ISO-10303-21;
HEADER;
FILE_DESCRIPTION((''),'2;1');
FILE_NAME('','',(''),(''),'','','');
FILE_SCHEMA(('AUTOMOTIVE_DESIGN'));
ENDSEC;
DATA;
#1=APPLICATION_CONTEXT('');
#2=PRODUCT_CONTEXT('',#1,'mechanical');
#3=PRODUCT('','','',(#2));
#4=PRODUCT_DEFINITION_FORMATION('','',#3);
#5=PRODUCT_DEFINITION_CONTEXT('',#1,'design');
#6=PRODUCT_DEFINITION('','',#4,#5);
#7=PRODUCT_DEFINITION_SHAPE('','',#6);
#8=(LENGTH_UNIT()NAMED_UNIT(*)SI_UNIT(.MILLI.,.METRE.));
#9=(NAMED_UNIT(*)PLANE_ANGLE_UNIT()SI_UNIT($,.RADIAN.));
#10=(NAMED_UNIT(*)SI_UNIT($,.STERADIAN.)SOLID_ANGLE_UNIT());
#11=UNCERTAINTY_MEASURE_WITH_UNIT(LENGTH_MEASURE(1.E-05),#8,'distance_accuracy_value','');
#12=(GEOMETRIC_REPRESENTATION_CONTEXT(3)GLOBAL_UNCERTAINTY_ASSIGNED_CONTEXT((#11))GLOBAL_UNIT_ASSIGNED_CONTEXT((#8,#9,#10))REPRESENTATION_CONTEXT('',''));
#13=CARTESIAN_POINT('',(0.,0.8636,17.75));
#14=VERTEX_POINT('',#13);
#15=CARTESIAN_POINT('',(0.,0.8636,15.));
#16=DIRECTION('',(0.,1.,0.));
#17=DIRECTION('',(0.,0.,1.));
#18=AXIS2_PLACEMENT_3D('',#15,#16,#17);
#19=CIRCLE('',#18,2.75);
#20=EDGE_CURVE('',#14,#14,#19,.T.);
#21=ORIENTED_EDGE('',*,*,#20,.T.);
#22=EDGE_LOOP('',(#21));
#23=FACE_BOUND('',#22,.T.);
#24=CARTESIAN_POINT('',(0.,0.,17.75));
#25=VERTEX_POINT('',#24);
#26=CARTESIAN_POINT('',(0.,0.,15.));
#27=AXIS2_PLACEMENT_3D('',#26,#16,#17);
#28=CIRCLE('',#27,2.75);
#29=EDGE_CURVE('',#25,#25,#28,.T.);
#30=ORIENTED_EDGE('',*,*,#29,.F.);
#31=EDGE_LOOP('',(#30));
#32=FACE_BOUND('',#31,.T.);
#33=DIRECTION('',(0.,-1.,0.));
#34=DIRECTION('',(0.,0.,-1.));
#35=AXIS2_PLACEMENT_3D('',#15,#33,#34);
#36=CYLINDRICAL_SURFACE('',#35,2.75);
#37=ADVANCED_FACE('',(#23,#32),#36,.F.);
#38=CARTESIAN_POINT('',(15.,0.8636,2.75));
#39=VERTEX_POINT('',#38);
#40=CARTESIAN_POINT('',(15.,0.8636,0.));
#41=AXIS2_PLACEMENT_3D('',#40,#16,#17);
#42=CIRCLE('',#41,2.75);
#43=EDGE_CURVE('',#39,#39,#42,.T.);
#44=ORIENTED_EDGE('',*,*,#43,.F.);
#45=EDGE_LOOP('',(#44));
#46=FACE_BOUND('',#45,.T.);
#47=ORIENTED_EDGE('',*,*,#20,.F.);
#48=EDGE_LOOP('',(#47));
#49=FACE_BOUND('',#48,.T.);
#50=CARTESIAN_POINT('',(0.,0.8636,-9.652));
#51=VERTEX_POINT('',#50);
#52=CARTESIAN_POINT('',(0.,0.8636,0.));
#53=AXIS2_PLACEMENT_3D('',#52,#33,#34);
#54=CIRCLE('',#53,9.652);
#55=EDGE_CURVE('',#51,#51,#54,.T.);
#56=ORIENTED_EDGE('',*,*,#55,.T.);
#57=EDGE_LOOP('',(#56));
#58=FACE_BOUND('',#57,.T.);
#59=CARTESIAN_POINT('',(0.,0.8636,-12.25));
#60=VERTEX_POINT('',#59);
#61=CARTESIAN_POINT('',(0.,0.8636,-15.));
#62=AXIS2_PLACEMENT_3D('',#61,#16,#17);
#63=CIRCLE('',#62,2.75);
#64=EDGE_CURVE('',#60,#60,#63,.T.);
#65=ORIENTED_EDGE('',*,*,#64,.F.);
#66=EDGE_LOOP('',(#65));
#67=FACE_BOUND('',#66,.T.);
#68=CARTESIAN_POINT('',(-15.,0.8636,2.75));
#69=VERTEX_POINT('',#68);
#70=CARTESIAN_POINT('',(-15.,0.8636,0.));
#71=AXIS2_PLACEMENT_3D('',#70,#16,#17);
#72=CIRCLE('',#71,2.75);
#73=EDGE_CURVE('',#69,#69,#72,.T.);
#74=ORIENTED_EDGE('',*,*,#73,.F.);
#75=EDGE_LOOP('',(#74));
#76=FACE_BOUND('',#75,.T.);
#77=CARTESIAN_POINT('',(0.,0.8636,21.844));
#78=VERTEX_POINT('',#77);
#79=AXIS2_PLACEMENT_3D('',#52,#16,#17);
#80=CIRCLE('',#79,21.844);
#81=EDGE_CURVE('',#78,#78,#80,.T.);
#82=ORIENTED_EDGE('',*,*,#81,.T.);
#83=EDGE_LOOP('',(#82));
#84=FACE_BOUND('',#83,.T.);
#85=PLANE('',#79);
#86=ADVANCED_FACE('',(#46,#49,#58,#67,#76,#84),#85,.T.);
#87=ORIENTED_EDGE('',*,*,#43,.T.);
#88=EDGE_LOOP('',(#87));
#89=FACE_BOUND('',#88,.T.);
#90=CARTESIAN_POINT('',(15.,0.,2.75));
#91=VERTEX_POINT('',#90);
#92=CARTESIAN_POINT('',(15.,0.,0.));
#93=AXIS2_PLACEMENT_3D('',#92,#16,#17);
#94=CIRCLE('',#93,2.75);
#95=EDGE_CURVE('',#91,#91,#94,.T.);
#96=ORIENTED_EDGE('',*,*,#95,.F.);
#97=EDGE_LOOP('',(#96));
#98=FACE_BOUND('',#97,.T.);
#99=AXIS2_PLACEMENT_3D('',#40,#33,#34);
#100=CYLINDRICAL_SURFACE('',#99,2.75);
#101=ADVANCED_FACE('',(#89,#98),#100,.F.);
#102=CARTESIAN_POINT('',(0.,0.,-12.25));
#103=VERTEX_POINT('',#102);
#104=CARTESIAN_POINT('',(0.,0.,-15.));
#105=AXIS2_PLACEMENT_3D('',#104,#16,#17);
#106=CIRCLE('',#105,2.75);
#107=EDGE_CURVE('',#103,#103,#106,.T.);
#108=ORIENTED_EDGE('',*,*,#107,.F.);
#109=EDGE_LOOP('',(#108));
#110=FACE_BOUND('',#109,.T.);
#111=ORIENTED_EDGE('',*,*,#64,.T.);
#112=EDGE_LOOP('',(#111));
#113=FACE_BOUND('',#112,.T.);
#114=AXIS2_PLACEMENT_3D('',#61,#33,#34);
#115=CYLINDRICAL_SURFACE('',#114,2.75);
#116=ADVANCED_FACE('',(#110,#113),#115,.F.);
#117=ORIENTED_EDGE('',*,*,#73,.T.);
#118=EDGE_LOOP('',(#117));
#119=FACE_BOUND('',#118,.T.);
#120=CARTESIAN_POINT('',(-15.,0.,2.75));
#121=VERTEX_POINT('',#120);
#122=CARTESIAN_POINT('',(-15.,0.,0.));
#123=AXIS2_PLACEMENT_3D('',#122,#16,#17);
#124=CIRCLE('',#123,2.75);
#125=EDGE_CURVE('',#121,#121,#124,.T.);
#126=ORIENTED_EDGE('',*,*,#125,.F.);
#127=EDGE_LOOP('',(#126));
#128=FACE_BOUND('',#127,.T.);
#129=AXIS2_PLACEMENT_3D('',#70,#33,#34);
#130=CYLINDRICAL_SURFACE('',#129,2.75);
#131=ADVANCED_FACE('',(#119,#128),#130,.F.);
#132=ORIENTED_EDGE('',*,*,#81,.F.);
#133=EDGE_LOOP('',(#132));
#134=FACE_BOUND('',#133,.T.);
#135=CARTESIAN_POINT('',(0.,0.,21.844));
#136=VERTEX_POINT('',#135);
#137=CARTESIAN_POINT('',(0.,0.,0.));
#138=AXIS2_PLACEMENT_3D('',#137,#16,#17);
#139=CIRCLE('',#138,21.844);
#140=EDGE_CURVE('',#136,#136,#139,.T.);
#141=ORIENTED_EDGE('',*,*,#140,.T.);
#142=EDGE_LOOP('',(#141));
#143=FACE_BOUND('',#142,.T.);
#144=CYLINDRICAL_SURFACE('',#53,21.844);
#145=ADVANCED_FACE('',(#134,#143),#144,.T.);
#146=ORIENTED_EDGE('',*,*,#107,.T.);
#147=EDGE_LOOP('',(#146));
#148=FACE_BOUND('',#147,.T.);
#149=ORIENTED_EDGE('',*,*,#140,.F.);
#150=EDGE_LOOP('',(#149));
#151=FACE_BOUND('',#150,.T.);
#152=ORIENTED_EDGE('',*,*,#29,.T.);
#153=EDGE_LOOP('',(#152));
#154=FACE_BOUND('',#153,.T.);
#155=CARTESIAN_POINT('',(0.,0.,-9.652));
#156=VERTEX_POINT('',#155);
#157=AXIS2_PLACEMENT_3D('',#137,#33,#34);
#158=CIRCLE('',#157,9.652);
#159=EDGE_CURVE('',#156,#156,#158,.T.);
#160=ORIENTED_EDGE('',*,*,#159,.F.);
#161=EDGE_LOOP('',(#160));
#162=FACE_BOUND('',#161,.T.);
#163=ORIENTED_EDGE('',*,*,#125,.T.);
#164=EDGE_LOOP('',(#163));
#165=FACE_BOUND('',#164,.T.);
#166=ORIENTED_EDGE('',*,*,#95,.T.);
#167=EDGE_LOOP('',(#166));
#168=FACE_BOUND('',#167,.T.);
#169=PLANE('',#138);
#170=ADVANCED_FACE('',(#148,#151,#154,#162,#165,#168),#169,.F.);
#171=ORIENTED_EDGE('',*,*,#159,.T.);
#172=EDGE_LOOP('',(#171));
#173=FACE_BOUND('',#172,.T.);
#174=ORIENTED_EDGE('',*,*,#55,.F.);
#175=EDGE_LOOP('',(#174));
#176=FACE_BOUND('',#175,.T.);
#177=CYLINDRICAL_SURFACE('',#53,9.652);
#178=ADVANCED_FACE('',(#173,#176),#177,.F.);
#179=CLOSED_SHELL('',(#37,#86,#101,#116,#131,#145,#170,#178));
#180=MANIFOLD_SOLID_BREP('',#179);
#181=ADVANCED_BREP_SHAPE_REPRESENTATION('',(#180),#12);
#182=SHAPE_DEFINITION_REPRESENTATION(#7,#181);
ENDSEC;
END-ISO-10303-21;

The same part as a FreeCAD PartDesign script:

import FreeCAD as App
import Part
import Sketcher

V = App.Vector
Q = App.Units.Quantity

doc = App.newDocument("Part")
params = doc.addObject("Spreadsheet::Sheet", "Params")
for row, (alias, value) in enumerate([
    ("sketch1_diameter", "1.72 in"),
    ("pad1_length", "0.034 in"),
    ("sketch2_diameter", "0.76 in"),
    ("pocket1_length", "0.034 in"),
], start=1):
    params.set(f"A{row}", alias)
    params.set(f"B{row}", "=" + value)
    params.setAlias(f"B{row}", alias)

body = doc.addObject("PartDesign::Body", "Body")

# Sketch on XZ plane
sketch1 = body.newObject("Sketcher::SketchObject", "Sketch")
sketch1.AttachmentSupport = (doc.getObject("XZ_Plane"), [""])
sketch1.MapMode = "FlatFace"
sketch1.addGeometry([
    Part.Circle(V(0, 0, 0), V(0, 0, 1), 21.8),  # 0
    Part.Circle(V(0, -15, 0), V(0, 0, 1), 2.8),  # 1
    Part.Circle(V(-15, 0, 0), V(0, 0, 1), 2.8),  # 2
    Part.Circle(V(15, 0, 0), V(0, 0, 1), 2.8),  # 3
    Part.Circle(V(0, 15, 0), V(0, 0, 1), 2.8),  # 4
], False)
sketch1.addConstraint([
    Sketcher.Constraint("Coincident", 0, 3, -1, 1),
    Sketcher.Constraint("Equal", 1, 2),
    Sketcher.Constraint("Equal", 2, 3),
    Sketcher.Constraint("Equal", 3, 4),
    Sketcher.Constraint("Symmetric", 2, 3, 3, 3, -1, 1),
    Sketcher.Constraint("Symmetric", 1, 3, 4, 3, -1, 1),
    Sketcher.Constraint("PointOnObject", 1, 3, -2),
    Sketcher.Constraint("PointOnObject", 2, 3, -1),
    Sketcher.Constraint("Diameter", 0, Q("1.72 in")),
    Sketcher.Constraint("Diameter", 1, 5.5),
    Sketcher.Constraint("DistanceY", 1, 3, -1, 1, 15.0),
    Sketcher.Constraint("DistanceX", 2, 3, -1, 1, 15.0),
])
sketch1.setExpression("Constraints[8]", "Params.sketch1_diameter")
pad1 = body.newObject("PartDesign::Pad", "Pad")
pad1.Profile = sketch1
pad1.setExpression("Length", "Params.pad1_length")
pad1.Reversed = True

# Sketch on XZ plane
sketch2 = body.newObject("Sketcher::SketchObject", "Sketch001")
sketch2.AttachmentSupport = (doc.getObject("XZ_Plane"), [""])
sketch2.MapMode = "FlatFace"
sketch2.addGeometry(Part.Circle(V(0, 0, 0), V(0, 0, 1), 10), False)
sketch2.addConstraint([
    Sketcher.Constraint("Coincident", 0, 3, -1, 1),
    Sketcher.Constraint("Diameter", 0, Q("0.76 in")),
])
sketch2.setExpression("Constraints[1]", "Params.sketch2_diameter")
pocket1 = body.newObject("PartDesign::Pocket", "Pocket")
pocket1.Profile = sketch2
pocket1.setExpression("Length", "Params.pocket1_length")

doc.recompute()
